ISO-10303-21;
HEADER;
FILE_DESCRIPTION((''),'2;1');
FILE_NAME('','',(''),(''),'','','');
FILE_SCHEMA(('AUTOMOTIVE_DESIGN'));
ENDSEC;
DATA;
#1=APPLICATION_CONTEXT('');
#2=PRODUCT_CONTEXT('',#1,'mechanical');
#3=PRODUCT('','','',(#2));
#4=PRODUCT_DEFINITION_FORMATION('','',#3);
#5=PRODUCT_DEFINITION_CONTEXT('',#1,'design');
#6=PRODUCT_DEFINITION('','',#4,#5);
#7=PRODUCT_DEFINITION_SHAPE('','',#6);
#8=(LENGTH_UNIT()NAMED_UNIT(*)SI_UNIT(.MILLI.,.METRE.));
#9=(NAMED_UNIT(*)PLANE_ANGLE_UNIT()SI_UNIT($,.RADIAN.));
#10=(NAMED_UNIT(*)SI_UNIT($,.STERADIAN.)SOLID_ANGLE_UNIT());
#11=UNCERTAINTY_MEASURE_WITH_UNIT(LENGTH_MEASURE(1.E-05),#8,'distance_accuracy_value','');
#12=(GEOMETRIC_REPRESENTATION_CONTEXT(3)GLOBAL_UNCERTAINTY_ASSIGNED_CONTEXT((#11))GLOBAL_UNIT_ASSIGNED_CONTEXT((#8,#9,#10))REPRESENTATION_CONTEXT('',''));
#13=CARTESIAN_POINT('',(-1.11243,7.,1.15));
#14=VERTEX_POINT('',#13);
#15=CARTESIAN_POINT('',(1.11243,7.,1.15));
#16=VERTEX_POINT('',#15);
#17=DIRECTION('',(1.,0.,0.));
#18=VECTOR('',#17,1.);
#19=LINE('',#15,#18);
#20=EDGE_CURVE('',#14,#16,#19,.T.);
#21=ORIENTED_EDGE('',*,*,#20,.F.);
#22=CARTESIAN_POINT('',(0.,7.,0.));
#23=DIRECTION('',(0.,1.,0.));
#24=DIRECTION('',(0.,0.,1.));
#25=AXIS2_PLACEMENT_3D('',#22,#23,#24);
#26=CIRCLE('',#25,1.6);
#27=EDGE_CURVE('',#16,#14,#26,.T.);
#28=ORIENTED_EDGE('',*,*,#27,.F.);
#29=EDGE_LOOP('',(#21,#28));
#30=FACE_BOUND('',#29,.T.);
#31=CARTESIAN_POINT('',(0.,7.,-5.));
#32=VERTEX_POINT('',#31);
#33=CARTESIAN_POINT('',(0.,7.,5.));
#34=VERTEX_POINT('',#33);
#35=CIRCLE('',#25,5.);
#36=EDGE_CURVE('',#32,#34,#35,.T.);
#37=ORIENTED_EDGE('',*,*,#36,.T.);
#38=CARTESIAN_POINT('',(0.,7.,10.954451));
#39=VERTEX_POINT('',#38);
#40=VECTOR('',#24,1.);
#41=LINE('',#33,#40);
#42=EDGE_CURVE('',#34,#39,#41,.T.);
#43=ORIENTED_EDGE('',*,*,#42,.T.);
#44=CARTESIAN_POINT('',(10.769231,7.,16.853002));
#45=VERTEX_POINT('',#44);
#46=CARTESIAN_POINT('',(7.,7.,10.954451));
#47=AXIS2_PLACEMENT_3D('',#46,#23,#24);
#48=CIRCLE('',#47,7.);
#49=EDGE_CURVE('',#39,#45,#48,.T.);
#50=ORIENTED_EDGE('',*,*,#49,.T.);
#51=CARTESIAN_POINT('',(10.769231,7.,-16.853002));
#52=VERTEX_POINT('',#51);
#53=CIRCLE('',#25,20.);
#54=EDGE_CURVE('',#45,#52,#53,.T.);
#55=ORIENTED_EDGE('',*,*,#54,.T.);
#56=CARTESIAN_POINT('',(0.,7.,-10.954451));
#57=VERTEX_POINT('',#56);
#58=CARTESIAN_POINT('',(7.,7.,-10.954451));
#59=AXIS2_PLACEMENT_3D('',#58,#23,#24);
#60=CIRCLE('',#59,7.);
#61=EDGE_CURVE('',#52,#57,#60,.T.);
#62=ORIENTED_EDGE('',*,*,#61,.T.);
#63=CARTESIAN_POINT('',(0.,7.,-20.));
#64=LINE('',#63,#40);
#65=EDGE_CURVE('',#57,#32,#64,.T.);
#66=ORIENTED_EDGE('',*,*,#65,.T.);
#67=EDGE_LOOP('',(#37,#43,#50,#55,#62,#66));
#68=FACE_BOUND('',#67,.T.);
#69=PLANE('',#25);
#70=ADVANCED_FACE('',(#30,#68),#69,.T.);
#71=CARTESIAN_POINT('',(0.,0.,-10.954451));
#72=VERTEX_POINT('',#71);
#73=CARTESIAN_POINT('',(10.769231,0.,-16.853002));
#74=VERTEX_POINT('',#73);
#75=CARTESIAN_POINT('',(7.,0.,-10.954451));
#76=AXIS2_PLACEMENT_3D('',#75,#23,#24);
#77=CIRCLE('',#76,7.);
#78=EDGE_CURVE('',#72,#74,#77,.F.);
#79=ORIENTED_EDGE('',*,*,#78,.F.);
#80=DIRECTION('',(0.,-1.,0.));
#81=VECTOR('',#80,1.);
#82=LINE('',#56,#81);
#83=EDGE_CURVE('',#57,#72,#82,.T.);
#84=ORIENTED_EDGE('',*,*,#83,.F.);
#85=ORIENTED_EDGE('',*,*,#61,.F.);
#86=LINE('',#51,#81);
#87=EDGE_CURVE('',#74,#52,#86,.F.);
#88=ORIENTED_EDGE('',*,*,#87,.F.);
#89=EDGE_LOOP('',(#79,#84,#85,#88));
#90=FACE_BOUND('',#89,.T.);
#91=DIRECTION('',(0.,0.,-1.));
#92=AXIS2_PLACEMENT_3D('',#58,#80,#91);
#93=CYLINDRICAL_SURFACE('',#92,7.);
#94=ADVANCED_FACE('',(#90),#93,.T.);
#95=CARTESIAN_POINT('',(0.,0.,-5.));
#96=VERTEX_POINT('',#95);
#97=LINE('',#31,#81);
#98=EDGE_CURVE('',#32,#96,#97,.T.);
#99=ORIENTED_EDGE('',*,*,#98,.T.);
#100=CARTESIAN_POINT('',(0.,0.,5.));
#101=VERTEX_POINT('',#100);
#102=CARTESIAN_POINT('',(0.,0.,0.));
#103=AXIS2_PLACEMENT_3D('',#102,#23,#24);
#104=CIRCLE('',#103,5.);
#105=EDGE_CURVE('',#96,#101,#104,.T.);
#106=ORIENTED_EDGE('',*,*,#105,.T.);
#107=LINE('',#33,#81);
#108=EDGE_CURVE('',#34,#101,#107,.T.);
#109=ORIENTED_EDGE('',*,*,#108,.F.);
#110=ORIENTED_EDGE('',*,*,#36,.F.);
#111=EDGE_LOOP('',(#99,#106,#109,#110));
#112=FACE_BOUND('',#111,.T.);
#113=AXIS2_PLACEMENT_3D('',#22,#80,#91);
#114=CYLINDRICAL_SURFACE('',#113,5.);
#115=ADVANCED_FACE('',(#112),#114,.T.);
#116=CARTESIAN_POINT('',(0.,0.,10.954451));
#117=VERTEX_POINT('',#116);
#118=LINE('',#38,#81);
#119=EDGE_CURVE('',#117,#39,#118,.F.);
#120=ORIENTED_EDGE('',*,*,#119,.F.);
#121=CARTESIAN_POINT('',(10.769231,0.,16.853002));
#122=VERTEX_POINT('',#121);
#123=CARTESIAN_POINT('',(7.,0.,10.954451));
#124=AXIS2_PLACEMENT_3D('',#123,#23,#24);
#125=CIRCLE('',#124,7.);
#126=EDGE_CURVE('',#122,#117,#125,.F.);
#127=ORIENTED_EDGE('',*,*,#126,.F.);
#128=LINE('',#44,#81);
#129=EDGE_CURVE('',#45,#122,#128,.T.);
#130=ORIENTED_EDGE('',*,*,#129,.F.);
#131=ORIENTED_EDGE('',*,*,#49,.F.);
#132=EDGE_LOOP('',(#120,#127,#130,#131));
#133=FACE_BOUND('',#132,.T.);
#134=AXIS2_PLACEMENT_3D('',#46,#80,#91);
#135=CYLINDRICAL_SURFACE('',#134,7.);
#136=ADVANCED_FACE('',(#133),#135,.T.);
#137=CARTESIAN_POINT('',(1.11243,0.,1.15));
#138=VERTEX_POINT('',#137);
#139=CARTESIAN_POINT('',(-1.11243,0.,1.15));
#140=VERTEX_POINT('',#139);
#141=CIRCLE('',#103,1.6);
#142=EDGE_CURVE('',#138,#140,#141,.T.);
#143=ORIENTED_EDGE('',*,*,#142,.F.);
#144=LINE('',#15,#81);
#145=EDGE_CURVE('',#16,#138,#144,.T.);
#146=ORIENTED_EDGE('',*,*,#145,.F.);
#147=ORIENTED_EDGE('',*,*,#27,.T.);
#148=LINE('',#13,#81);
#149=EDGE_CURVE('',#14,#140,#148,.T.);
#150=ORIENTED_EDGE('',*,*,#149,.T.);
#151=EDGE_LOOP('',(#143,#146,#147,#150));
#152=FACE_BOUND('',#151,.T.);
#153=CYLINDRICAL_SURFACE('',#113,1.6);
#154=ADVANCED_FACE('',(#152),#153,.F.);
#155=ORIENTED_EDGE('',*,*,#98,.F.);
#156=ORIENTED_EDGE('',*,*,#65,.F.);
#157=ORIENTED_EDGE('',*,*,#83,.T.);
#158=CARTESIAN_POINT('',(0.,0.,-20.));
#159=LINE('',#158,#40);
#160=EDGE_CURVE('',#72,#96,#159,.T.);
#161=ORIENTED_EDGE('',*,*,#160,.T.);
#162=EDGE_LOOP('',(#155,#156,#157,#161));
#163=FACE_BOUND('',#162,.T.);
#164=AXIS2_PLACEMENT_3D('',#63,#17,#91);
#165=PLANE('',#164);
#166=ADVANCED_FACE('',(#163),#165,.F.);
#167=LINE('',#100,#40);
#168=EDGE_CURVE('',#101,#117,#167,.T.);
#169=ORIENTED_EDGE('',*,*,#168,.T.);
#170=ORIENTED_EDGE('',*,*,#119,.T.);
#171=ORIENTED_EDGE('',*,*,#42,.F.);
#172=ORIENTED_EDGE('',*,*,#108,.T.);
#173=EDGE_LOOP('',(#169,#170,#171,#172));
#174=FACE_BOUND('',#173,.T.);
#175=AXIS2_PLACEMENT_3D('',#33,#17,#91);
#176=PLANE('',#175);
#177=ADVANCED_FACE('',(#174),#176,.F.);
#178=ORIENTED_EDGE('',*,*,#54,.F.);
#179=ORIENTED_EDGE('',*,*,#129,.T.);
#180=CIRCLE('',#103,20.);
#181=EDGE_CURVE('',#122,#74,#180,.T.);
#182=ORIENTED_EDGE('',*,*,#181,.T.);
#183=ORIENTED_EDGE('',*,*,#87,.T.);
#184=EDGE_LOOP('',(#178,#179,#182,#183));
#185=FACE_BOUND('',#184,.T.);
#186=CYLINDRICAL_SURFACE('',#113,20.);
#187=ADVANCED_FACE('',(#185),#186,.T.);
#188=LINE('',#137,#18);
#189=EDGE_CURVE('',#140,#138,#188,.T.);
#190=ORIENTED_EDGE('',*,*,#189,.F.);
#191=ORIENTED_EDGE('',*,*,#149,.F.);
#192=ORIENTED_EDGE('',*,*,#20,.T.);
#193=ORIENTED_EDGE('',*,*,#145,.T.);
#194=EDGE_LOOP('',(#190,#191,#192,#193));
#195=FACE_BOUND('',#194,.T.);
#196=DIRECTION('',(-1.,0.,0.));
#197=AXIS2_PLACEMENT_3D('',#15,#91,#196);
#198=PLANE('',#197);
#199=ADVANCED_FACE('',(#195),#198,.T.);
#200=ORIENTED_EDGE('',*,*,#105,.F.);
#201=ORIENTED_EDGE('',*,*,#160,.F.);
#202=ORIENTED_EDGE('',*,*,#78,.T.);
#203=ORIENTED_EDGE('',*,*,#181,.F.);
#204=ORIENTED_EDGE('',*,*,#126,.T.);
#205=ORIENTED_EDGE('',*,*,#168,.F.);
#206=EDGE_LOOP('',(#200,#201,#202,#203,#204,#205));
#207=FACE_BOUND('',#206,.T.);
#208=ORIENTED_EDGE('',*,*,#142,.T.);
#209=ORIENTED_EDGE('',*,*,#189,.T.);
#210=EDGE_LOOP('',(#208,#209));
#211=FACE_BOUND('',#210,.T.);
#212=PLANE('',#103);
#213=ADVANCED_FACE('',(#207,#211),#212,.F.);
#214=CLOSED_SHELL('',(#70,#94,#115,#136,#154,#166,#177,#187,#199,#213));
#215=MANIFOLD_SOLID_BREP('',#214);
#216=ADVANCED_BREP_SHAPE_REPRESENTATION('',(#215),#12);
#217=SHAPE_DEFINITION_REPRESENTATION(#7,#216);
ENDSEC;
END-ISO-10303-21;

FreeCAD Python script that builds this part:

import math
import FreeCAD as App
import Part
import Sketcher

V = App.Vector


def edges_at(feature, points):
    """Names of the edges that pass closest to the given points."""
    edges = feature.Shape.Edges
    near = lambda p: min(range(len(edges)), key=lambda i: edges[i].distToShape(Part.Vertex(*p))[0])
    return sorted({f"Edge{near(p) + 1}" for p in points})

doc = App.newDocument("Part")
body = doc.addObject("PartDesign::Body", "Body")

# Sketch on XZ plane
sketch1 = body.newObject("Sketcher::SketchObject", "Sketch")
sketch1.AttachmentSupport = (doc.getObject("XZ_Plane"), [""])
sketch1.MapMode = "FlatFace"
sketch1.addGeometry(Part.LineSegment(V(0, -20, 0), V(0, -5, 0)), False)
sketch1.addGeometry(Part.ArcOfCircle(Part.Circle(V(0, 0, 0), V(0, 0, 1), 5), math.radians(90), math.radians(270)), False)
sketch1.addGeometry(Part.LineSegment(V(0, 5, 0), V(0, 20, 0)), False)
sketch1.addGeometry(Part.ArcOfCircle(Part.Circle(V(0, 0, 0), V(0, 0, 1), 20), math.radians(-90), math.radians(90)), False)
sketch1.addGeometry(Part.ArcOfCircle(Part.Circle(V(0, 0, 0), V(0, 0, 1), 1.6), math.radians(134), math.radians(406)), False)
sketch1.addGeometry(Part.LineSegment(V(1.1, 1.1, 0), V(-1.1, 1.1, 0)), False)
sketch1.addConstraint(Sketcher.Constraint("Coincident", 0, 2, 1, 2))
sketch1.addConstraint(Sketcher.Constraint("Coincident", 1, 1, 2, 1))
sketch1.addConstraint(Sketcher.Constraint("Coincident", 2, 2, 3, 2))
sketch1.addConstraint(Sketcher.Constraint("Coincident", 3, 1, 0, 1))
sketch1.addConstraint(Sketcher.Constraint("Coincident", 4, 1, 5, 2))
sketch1.addConstraint(Sketcher.Constraint("Coincident", 5, 1, 4, 2))
sketch1.addConstraint(Sketcher.Constraint("Vertical", 0))
sketch1.addConstraint(Sketcher.Constraint("Vertical", 2))
sketch1.addConstraint(Sketcher.Constraint("Horizontal", 5))
sketch1.addConstraint(Sketcher.Constraint("Coincident", 1, 3, -1, 1))
sketch1.addConstraint(Sketcher.Constraint("Coincident", 3, 3, -1, 1))
sketch1.addConstraint(Sketcher.Constraint("Coincident", 4, 3, -1, 1))
sketch1.addConstraint(Sketcher.Constraint("PointOnObject", 0, 2, -2))
sketch1.addConstraint(Sketcher.Constraint("PointOnObject", 1, 1, -2))
sketch1.addConstraint(Sketcher.Constraint("Radius", 1, 5.0))
sketch1.addConstraint(Sketcher.Constraint("Radius", 3, 20.0))
sketch1.addConstraint(Sketcher.Constraint("Radius", 4, 1.6))
sketch1.addConstraint(Sketcher.Constraint("DistanceY", -1, 1, 4, 1, 1.15))
pad1 = body.newObject("PartDesign::Pad", "Pad")
pad1.Profile = sketch1
pad1.Length = 7
pad1.Reversed = True
doc.recompute()

fillet = body.newObject("PartDesign::Fillet", "Fillet")
fillet.Base = (pad1, edges_at(pad1, [(0, 3.5, 20), (0, 3.5, -20)]))
fillet.Radius = 7

doc.recompute()
